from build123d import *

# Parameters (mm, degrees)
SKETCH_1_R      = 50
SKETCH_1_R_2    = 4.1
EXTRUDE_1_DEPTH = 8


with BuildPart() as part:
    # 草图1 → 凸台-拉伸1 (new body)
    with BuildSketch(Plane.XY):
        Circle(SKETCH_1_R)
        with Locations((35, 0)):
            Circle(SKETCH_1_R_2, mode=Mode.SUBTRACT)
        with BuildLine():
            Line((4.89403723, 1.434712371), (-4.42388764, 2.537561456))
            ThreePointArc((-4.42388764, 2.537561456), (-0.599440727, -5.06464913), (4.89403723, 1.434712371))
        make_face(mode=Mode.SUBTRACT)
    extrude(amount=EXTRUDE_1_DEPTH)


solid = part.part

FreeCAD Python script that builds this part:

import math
import FreeCAD as App
import Part
import Sketcher
Q = App.Units.Quantity

doc = App.newDocument("Part")
body = doc.addObject("PartDesign::Body", "Body")

# Sketch on XY plane
sketch1 = body.newObject("Sketcher::SketchObject", "Sketch")
sketch1.AttachmentSupport = (doc.getObject("XY_Plane"), [""])
sketch1.MapMode = "FlatFace"
sketch1.addGeometry([
    Part.Circle(App.Vector(0, 0, 0), App.Vector(0, 0, 1), 50),
    Part.LineSegment(App.Vector(-4.423888, 2.537561, 0), App.Vector(4.894037, 1.434712, 0)),
    Part.ArcOfCircle(Part.Circle(App.Vector(0, 0, 0), App.Vector(0, 0, 1), 5.1), math.radians(150.161228), math.radians(376.338772)),
    Part.Circle(App.Vector(35, 0, 0), App.Vector(0, 0, 1), 4.1),
], False)
sketch1.addConstraint([
    Sketcher.Constraint("Coincident", 1, 1, 2, 1),
    Sketcher.Constraint("Coincident", 2, 2, 1, 2),
    Sketcher.Constraint("Coincident", 0, 3, -1, 1),
    Sketcher.Constraint("Coincident", 2, 3, -1, 1),
    Sketcher.Constraint("PointOnObject", 3, 3, -1),
    Sketcher.Constraint("Diameter", 0, Q("100 mm")),
    Sketcher.Constraint("Diameter", 3, Q("8.2 mm")),
    Sketcher.Constraint("Radius", 2, Q("5.1 mm")),
    Sketcher.Constraint("DistanceX", -1, 1, 3, 3, Q("35 mm")),
    Sketcher.Constraint("Angle", 1, Q("-6.75 deg")),
    Sketcher.Constraint("DistanceY", -1, 1, 1, 1, Q("2.537561 mm")),
])
pad1 = body.newObject("PartDesign::Pad", "Pad")
pad1.Profile = sketch1
pad1.Length = 8

doc.recompute()
